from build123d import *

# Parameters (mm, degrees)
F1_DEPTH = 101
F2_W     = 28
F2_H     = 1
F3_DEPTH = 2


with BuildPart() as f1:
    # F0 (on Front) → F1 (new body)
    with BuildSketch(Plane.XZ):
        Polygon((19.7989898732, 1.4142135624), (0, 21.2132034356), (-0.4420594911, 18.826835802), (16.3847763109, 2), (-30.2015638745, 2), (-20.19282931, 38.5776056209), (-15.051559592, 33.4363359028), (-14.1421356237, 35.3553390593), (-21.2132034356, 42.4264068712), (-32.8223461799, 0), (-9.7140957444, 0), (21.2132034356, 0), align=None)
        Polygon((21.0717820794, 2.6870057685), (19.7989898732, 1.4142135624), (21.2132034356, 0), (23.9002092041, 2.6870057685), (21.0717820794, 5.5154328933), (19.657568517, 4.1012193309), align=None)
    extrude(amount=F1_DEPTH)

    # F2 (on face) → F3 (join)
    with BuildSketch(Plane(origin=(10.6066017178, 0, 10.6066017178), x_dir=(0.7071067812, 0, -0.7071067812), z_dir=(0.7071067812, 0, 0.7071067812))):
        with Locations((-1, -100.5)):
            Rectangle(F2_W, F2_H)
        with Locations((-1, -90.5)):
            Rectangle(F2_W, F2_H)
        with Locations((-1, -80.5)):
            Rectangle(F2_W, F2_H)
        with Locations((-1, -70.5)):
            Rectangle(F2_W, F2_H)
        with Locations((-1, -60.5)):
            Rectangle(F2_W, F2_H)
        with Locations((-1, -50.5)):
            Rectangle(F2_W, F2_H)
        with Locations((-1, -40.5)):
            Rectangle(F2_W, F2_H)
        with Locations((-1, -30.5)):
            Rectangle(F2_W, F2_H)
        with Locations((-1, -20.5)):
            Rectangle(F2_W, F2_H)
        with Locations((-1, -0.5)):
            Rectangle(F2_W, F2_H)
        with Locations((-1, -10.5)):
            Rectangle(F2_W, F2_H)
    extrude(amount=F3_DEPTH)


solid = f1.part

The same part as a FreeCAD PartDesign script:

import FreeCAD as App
import Part
import Sketcher

V = App.Vector
Q = App.Units.Quantity


def add_polygon(sketch, points):
    """Adds a closed chain of lines whose ends are joined by coincident constraints."""
    first, n = sketch.GeometryCount, len(points)
    for a, b in zip(points, points[1:] + points[:1]):
        sketch.addGeometry(Part.LineSegment(App.Vector(*a, 0), App.Vector(*b, 0)), False)
    for i in range(n):
        sketch.addConstraint(Sketcher.Constraint("Coincident", first + i, 2, first + (i + 1) % n, 1))

doc = App.newDocument("Part")
body = doc.addObject("PartDesign::Body", "Body")

sketch1 = body.newObject("Sketcher::SketchObject", "Sketch")
sketch1.AttachmentSupport = (doc.getObject("XZ_Plane"), [""])
sketch1.MapMode = "FlatFace"
add_polygon(sketch1, [(0, 21.2), (-0.4, 18.8), (16.4, 2), (-30.2, 2), (-20.2, 38.6), (-15.1, 33.4), (-14.1, 35.4), (-21.2, 42.4), (-32.8, 0), (21.2, 0), (23.9, 2.7), (21.1, 5.5), (19.7, 4.1), (21.1, 2.7), (19.8, 1.4)])
sketch1.addConstraint([
    Sketcher.Constraint("Horizontal", 2),
    Sketcher.Constraint("Horizontal", 8),
    Sketcher.Constraint("PointOnObject", 7, 2, -1),
    Sketcher.Constraint("PointOnObject", 14, 2, -2),
    Sketcher.Constraint("Parallel", 1, 4),
    Sketcher.Constraint("Parallel", 4, 6),
    Sketcher.Constraint("Parallel", 3, 7),
    Sketcher.Constraint("Perpendicular", 6, 9),
    Sketcher.Constraint("Perpendicular", 9, 10),
    Sketcher.Constraint("Perpendicular", 10, 11),
    Sketcher.Constraint("Perpendicular", 11, 12),
    Sketcher.Constraint("Perpendicular", 12, 13),
    Sketcher.Constraint("Perpendicular", 13, 14),
    Sketcher.Constraint("Horizontal", 9, 2, 12, 2),
    Sketcher.Constraint("Vertical", 10, 2, 12, 2),
    Sketcher.Constraint("Equal", 11, 12),
    Sketcher.Constraint("Distance", 6, Q("10 mm")),
    Sketcher.Constraint("Distance", 10, Q("4 mm")),
    Sketcher.Constraint("Distance", 14, Q("28 mm")),
    Sketcher.Constraint("DistanceY", -1, 1, 1, 2, Q("2 mm")),
    Sketcher.Constraint("Distance", 9, Q("3.8 mm")),
    Sketcher.Constraint("Distance", 13, Q("1.8 mm")),
    Sketcher.Constraint("DistanceX", 2, 2, 2, 1, Q("46.58634 mm")),
    Sketcher.Constraint("DistanceX", 8, 1, 8, 2, Q("54.03555 mm")),
    Sketcher.Constraint("DistanceX", 4, 2, 0, 2, Q("14.6095 mm")),
    Sketcher.Constraint("DistanceY", 0, 2, 4, 2, Q("14.6095 mm")),
    Sketcher.Constraint("DistanceY", 3, 2, 6, 2, Q("3.848801 mm")),
    Sketcher.Constraint("Distance", 1, Q("23.796739 mm")),
    Sketcher.Constraint("DistanceX", 0, 2, -1, 1, Q("0.442059 mm")),
    Sketcher.Constraint("DistanceX", 3, 2, -1, 1, Q("20.192829 mm")),
])
pad1 = body.newObject("PartDesign::Pad", "Pad")
pad1.Profile = sketch1
pad1.Length = 101

sketch2 = body.newObject("Sketcher::SketchObject", "Sketch001")
sketch2.Placement = App.Placement(V(10.606602, 0, 10.606602), App.Rotation(V(0.707106781, 0, -0.707106781), V(0, 0.999999999, 0), V(0.707106781, 0, 0.707106781), "ZXY"))
add_polygon(sketch2, [(-15, -100), (-15, -101), (13, -101), (13, -100)])
add_polygon(sketch2, [(-15, -90), (-15, -91), (13, -91), (13, -90)])
add_polygon(sketch2, [(-15, -80), (-15, -81), (13, -81), (13, -80)])
add_polygon(sketch2, [(-15, -70), (-15, -71), (13, -71), (13, -70)])
add_polygon(sketch2, [(-15, -60), (-15, -61), (13, -61), (13, -60)])
add_polygon(sketch2, [(-15, -50), (-15, -51), (13, -51), (13, -50)])
add_polygon(sketch2, [(-15, -40), (-15, -41), (13, -41), (13, -40)])
add_polygon(sketch2, [(-15, -30), (-15, -31), (13, -31), (13, -30)])
add_polygon(sketch2, [(-15, -20), (-15, -21), (13, -21), (13, -20)])
add_polygon(sketch2, [(-15, 0), (-15, -1), (13, -1), (13, 0)])
add_polygon(sketch2, [(-15, -10), (-15, -11), (13, -11), (13, -10)])
sketch2.addConstraint([
    Sketcher.Constraint("Vertical", 0),
    Sketcher.Constraint("Horizontal", 1),
    Sketcher.Constraint("Vertical", 2),
    Sketcher.Constraint("Horizontal", 3),
    Sketcher.Constraint("Vertical", 4),
    Sketcher.Constraint("Horizontal", 5),
    Sketcher.Constraint("Vertical", 6),
    Sketcher.Constraint("Horizontal", 7),
    Sketcher.Constraint("Vertical", 8),
    Sketcher.Constraint("Horizontal", 9),
    Sketcher.Constraint("Vertical", 10),
    Sketcher.Constraint("Horizontal", 11),
    Sketcher.Constraint("Vertical", 12),
    Sketcher.Constraint("Horizontal", 13),
    Sketcher.Constraint("Vertical", 14),
    Sketcher.Constraint("Horizontal", 15),
    Sketcher.Constraint("Vertical", 16),
    Sketcher.Constraint("Horizontal", 17),
    Sketcher.Constraint("Vertical", 18),
    Sketcher.Constraint("Horizontal", 19),
    Sketcher.Constraint("Vertical", 20),
    Sketcher.Constraint("Horizontal", 21),
    Sketcher.Constraint("Vertical", 22),
    Sketcher.Constraint("Horizontal", 23),
    Sketcher.Constraint("Vertical", 24),
    Sketcher.Constraint("Horizontal", 25),
    Sketcher.Constraint("Vertical", 26),
    Sketcher.Constraint("Horizontal", 27),
    Sketcher.Constraint("Vertical", 28),
    Sketcher.Constraint("Horizontal", 29),
    Sketcher.Constraint("Vertical", 30),
    Sketcher.Constraint("Horizontal", 31),
    Sketcher.Constraint("Vertical", 32),
    Sketcher.Constraint("Horizontal", 33),
    Sketcher.Constraint("Vertical", 34),
    Sketcher.Constraint("Horizontal", 35),
    Sketcher.Constraint("Vertical", 36),
    Sketcher.Constraint("Horizontal", 37),
    Sketcher.Constraint("Vertical", 38),
    Sketcher.Constraint("Horizontal", 39),
    Sketcher.Constraint("Vertical", 40),
    Sketcher.Constraint("Horizontal", 41),
    Sketcher.Constraint("Vertical", 42),
    Sketcher.Constraint("Horizontal", 43),
    Sketcher.Constraint("PointOnObject", 38, 2, -1),
    Sketcher.Constraint("Vertical", 3, 2, 4, 2),
    Sketcher.Constraint("Vertical", 2, 2, 5, 2),
    Sketcher.Constraint("Vertical", 7, 2, 8, 2),
    Sketcher.Constraint("Vertical", 6, 2, 9, 2),
    Sketcher.Constraint("Vertical", 11, 2, 12, 2),
    Sketcher.Constraint("Vertical", 10, 2, 13, 2),
    Sketcher.Constraint("Vertical", 15, 2, 16, 2),
    Sketcher.Constraint("Vertical", 14, 2, 17, 2),
    Sketcher.Constraint("Vertical", 19, 2, 20, 2),
    Sketcher.Constraint("Vertical", 18, 2, 21, 2),
    Sketcher.Constraint("Vertical", 23, 2, 24, 2),
    Sketcher.Constraint("Vertical", 22, 2, 25, 2),
    Sketcher.Constraint("Vertical", 27, 2, 28, 2),
    Sketcher.Constraint("Vertical", 26, 2, 29, 2),
    Sketcher.Constraint("Vertical", 31, 2, 32, 2),
    Sketcher.Constraint("Vertical", 30, 2, 33, 2),
    Sketcher.Constraint("Vertical", 35, 2, 36, 2),
    Sketcher.Constraint("Vertical", 34, 2, 37, 2),
    Sketcher.Constraint("Vertical", 39, 2, 40, 2),
    Sketcher.Constraint("Vertical", 38, 2, 41, 2),
    Sketcher.Constraint("Equal", 2, 4),
    Sketcher.Constraint("Equal", 6, 8),
    Sketcher.Constraint("Equal", 10, 12),
    Sketcher.Constraint("Equal", 14, 16),
    Sketcher.Constraint("Equal", 18, 20),
    Sketcher.Constraint("Equal", 22, 24),
    Sketcher.Constraint("Equal", 26, 28),
    Sketcher.Constraint("Equal", 30, 32),
    Sketcher.Constraint("Equal", 34, 36),
    Sketcher.Constraint("Equal", 38, 40),
    Sketcher.Constraint("DistanceX", 1, 1, 1, 2, Q("28 mm")),
    Sketcher.Constraint("DistanceY", 0, 2, 0, 1, Q("1 mm")),
    Sketcher.Constraint("DistanceX", 0, 2, -1, 1, Q("15 mm")),
    Sketcher.Constraint("DistanceY", 0, 2, -1, 1, Q("101 mm")),
    Sketcher.Constraint("DistanceY", 4, 2, -1, 1, Q("91 mm")),
    Sketcher.Constraint("DistanceY", 8, 2, -1, 1, Q("81 mm")),
    Sketcher.Constraint("DistanceY", 12, 2, -1, 1, Q("71 mm")),
    Sketcher.Constraint("DistanceY", 16, 2, -1, 1, Q("61 mm")),
    Sketcher.Constraint("DistanceY", 20, 2, -1, 1, Q("51 mm")),
    Sketcher.Constraint("DistanceY", 24, 2, -1, 1, Q("41 mm")),
    Sketcher.Constraint("DistanceY", 28, 2, -1, 1, Q("31 mm")),
    Sketcher.Constraint("DistanceY", 32, 2, -1, 1, Q("21 mm")),
    Sketcher.Constraint("DistanceY", 40, 2, -1, 1, Q("11 mm")),
])
pad2 = body.newObject("PartDesign::Pad", "Pad001")
pad2.Profile = sketch2
pad2.Length = 2

doc.recompute()
